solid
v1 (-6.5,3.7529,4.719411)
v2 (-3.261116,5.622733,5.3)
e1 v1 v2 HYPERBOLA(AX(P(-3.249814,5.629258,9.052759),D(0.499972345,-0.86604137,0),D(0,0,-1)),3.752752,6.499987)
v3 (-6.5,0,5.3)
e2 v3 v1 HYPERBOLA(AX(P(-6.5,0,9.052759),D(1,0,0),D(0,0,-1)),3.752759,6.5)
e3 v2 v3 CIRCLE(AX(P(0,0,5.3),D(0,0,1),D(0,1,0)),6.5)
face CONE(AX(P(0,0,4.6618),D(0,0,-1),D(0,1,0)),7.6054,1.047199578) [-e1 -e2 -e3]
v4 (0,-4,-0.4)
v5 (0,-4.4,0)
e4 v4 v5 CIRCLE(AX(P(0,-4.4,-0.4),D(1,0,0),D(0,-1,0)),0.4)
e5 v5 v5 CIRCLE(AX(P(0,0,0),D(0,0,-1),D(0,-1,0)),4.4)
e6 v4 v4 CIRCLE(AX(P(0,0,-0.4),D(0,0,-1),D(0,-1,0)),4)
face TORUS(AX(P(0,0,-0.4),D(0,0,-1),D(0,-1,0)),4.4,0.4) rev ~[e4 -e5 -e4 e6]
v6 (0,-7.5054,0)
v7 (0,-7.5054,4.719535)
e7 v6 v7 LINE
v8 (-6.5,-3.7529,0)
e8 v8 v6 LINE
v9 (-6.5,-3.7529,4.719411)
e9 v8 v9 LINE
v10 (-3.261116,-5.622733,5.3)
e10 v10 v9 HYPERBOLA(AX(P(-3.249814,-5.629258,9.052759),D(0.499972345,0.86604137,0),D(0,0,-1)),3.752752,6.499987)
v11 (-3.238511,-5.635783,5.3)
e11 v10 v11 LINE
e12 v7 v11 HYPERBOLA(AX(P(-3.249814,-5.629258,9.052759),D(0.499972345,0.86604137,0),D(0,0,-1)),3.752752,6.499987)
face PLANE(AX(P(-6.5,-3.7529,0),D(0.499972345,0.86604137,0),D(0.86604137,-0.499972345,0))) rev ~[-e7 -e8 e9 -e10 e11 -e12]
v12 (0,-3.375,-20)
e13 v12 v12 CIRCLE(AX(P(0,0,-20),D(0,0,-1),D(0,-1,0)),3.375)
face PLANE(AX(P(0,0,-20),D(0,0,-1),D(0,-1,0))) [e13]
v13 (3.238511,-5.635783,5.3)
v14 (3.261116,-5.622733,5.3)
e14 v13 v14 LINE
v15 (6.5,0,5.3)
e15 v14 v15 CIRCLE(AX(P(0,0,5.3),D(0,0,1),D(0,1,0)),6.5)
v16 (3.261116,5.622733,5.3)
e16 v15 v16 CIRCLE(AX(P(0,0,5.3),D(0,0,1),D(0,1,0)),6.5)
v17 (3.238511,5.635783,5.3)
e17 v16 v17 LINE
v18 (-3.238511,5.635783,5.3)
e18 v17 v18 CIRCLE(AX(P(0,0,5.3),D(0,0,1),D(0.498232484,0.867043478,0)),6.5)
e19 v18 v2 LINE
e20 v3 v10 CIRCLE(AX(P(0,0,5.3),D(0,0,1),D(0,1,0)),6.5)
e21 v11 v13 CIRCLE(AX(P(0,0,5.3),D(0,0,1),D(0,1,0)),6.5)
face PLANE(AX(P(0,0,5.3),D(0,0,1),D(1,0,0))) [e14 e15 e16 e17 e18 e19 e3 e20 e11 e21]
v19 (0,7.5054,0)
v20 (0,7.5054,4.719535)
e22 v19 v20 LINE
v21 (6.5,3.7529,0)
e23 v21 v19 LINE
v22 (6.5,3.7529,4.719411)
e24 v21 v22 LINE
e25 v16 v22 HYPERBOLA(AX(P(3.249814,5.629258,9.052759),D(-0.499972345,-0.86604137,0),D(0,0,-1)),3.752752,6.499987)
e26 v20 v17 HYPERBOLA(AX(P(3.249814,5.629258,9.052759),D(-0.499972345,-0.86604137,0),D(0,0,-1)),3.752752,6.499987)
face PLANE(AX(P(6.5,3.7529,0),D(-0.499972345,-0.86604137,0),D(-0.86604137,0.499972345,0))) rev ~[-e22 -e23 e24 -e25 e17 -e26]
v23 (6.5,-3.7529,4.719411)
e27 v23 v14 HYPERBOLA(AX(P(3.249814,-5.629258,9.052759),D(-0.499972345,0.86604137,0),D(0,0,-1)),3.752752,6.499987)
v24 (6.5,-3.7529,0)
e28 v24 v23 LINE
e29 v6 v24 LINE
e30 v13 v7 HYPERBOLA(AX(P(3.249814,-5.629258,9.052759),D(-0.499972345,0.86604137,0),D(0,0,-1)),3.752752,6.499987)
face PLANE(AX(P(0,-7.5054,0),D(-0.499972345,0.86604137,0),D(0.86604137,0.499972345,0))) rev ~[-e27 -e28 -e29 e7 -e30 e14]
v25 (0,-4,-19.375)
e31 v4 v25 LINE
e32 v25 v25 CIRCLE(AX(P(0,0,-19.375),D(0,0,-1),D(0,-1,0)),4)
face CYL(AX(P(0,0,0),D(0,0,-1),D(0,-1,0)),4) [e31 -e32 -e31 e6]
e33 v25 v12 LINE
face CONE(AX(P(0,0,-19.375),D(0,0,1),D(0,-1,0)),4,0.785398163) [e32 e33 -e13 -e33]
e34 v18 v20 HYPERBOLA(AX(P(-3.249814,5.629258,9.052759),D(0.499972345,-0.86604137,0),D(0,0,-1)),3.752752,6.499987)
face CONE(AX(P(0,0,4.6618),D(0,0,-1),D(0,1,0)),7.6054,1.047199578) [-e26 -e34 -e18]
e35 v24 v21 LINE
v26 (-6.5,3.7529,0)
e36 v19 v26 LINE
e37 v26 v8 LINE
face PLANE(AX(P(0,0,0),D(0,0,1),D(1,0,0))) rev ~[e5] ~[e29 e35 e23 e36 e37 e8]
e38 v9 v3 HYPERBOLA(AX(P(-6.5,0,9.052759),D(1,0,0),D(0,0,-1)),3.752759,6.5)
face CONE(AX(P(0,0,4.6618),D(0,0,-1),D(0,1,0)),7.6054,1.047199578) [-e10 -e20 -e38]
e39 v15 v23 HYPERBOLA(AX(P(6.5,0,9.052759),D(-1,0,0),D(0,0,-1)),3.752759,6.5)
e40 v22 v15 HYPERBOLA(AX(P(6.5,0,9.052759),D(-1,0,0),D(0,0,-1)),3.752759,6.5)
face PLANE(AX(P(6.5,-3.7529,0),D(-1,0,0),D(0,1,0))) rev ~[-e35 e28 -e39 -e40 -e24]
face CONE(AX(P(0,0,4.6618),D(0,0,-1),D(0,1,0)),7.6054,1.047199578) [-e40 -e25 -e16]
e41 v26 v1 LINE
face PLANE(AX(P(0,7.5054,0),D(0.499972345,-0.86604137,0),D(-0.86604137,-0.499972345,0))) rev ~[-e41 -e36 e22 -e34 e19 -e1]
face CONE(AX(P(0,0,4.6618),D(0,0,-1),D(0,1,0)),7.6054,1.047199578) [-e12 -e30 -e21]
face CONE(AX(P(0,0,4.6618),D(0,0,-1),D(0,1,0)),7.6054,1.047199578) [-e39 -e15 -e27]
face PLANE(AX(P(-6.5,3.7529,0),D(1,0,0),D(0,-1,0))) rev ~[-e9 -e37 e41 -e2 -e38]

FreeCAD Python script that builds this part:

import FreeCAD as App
import Part
import Sketcher
from FreeCAD import Vector
Q = App.Units.Quantity


def edges_at(feature, points):
    """Names of the edges that pass closest to the given points."""
    edges = feature.Shape.Edges
    near = lambda p: min(range(len(edges)), key=lambda i: edges[i].distToShape(Part.Vertex(*p))[0])
    return sorted({f"Edge{near(p) + 1}" for p in points})


def add_polygon(sketch, points):
    """Adds a closed chain of lines whose ends are joined by coincident constraints."""
    first, n = sketch.GeometryCount, len(points)
    for a, b in zip(points, points[1:] + points[:1]):
        sketch.addGeometry(Part.LineSegment(App.Vector(*a, 0), App.Vector(*b, 0)), False)
    for i in range(n):
        sketch.addConstraint(Sketcher.Constraint("Coincident", first + i, 2, first + (i + 1) % n, 1))

doc = App.newDocument("Part")
body = doc.addObject("PartDesign::Body", "Body")

# Sketch on XY plane
sketch1 = body.newObject("Sketcher::SketchObject", "Sketch")
sketch1.AttachmentSupport = (doc.getObject("XY_Plane"), [""])
sketch1.MapMode = "FlatFace"
add_polygon(sketch1, [(0, 7.5054), (-6.5, 3.7529), (-6.5, -3.7529), (0, -7.5054), (6.5, -3.7529), (6.5, 3.7529)])  # lines 0-5
sketch1.addConstraint([
    Sketcher.Constraint("Vertical", 1),
    Sketcher.Constraint("Vertical", 4),
    Sketcher.Constraint("Symmetric", 0, 2, 3, 2, -1, 1),
    Sketcher.Constraint("Symmetric", 2, 2, 5, 2, -1, 1),
    Sketcher.Constraint("PointOnObject", 2, 2, -2),
    Sketcher.Constraint("Parallel", 2, 5),
    Sketcher.Constraint("Horizontal", 1, 2, 3, 2),
    Sketcher.Constraint("DistanceX", 1, 2, 3, 2, Q("13 mm")),
    Sketcher.Constraint("DistanceY", 1, 2, 1, 1, Q("7.5058 mm")),
    Sketcher.Constraint("Distance", 0, Q("7.5054 mm")),
])
pad1 = body.newObject("PartDesign::Pad", "Pad")
pad1.Profile = sketch1
pad1.Length = 5.3

# Sketch on YZ plane
sketch2 = body.newObject("Sketcher::SketchObject", "Sketch001")
sketch2.AttachmentSupport = (doc.getObject("YZ_Plane"), [""])
sketch2.MapMode = "FlatFace"
add_polygon(sketch2, [(6.5, 5.3), (7.6054, 4.6618), (7.6054, 5.3)])  # lines 0-2
sketch2.addConstraint([
    Sketcher.Constraint("Vertical", 1),
    Sketcher.Constraint("Horizontal", 2),
    Sketcher.Constraint("DistanceX", -1, 1, 2, 2, Q("6.5 mm")),
    Sketcher.Constraint("Angle", 0, Q("-30 deg")),
    Sketcher.Constraint("DistanceY", -1, 1, 1, 2, Q("5.3 mm")),
    Sketcher.Constraint("DistanceX", 2, 2, 2, 1, Q("1.1054 mm")),
])
groove = body.newObject("PartDesign::Groove", "Groove")
groove.Profile = sketch2
groove.ReferenceAxis = (sketch2, ["V_Axis"])
groove.Angle = 360

# Sketch on YZ plane
sketch3 = body.newObject("Sketcher::SketchObject", "Sketch002")
sketch3.AttachmentSupport = (doc.getObject("YZ_Plane"), [""])
sketch3.MapMode = "FlatFace"
add_polygon(sketch3, [(-4, -20), (0, -20), (0, 0), (-4, 0)])  # lines 0-3
sketch3.addConstraint([
    Sketcher.Constraint("Horizontal", 0),
    Sketcher.Constraint("Vertical", 1),
    Sketcher.Constraint("Horizontal", 2),
    Sketcher.Constraint("Vertical", 3),
    Sketcher.Constraint("Coincident", 1, 2, -1, 1),
    Sketcher.Constraint("DistanceX", 0, 1, 0, 2, Q("4 mm")),
    Sketcher.Constraint("DistanceY", 1, 1, 1, 2, Q("20 mm")),
])
revolution = body.newObject("PartDesign::Revolution", "Revolution")
revolution.Profile = sketch3
revolution.ReferenceAxis = (sketch3, ["V_Axis"])
revolution.Angle = 360
doc.recompute()

chamfer = body.newObject("PartDesign::Chamfer", "Chamfer")
chamfer.Base = (revolution, edges_at(revolution, [(0, 4, -20)]))
chamfer.Size = 0.625
doc.recompute()

fillet = body.newObject("PartDesign::Fillet", "Fillet")
fillet.Base = (chamfer, edges_at(chamfer, [(0, 4, 0)]))
fillet.Radius = 0.4

doc.recompute()
